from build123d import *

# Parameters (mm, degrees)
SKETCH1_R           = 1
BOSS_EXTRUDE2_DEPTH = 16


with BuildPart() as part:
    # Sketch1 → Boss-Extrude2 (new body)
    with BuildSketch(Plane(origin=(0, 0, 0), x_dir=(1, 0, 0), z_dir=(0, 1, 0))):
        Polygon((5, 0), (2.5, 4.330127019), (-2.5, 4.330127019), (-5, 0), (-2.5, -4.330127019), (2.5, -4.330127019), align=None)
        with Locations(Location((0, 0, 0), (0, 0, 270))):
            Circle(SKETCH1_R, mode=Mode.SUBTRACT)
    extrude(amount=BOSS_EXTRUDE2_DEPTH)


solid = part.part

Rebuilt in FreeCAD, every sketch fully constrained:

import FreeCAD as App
import Part
import Sketcher
Q = App.Units.Quantity

doc = App.newDocument("Part")
body = doc.addObject("PartDesign::Body", "Body")

sketch1 = body.newObject("Sketcher::SketchObject", "Sketch")
sketch1.AttachmentSupport = (doc.getObject("XZ_Plane"), [""])
sketch1.MapMode = "FlatFace"
sketch1.addGeometry(Part.LineSegment(App.Vector(5, 0, 0), App.Vector(2.5, -4.3, 0)), False)
sketch1.addGeometry(Part.LineSegment(App.Vector(2.5, -4.3, 0), App.Vector(-2.5, -4.3, 0)), False)
sketch1.addGeometry(Part.LineSegment(App.Vector(-2.5, -4.3, 0), App.Vector(-5, 0, 0)), False)
sketch1.addGeometry(Part.LineSegment(App.Vector(-5, 0, 0), App.Vector(-2.5, 4.3, 0)), False)
sketch1.addGeometry(Part.LineSegment(App.Vector(-2.5, 4.3, 0), App.Vector(2.5, 4.3, 0)), False)
sketch1.addGeometry(Part.LineSegment(App.Vector(2.5, 4.3, 0), App.Vector(5, 0, 0)), False)
sketch1.addGeometry(Part.Circle(App.Vector(0, 0, 0), App.Vector(0, 0, 1), 1), False)
sketch1.addConstraint(Sketcher.Constraint("Coincident", 0, 2, 1, 1))
sketch1.addConstraint(Sketcher.Constraint("Coincident", 1, 2, 2, 1))
sketch1.addConstraint(Sketcher.Constraint("Coincident", 2, 2, 3, 1))
sketch1.addConstraint(Sketcher.Constraint("Coincident", 3, 2, 4, 1))
sketch1.addConstraint(Sketcher.Constraint("Coincident", 4, 2, 5, 1))
sketch1.addConstraint(Sketcher.Constraint("Coincident", 5, 2, 0, 1))
sketch1.addConstraint(Sketcher.Constraint("Horizontal", 1))
sketch1.addConstraint(Sketcher.Constraint("Horizontal", 4))
sketch1.addConstraint(Sketcher.Constraint("Coincident", 6, 3, -1, 1))
sketch1.addConstraint(Sketcher.Constraint("Symmetric", 0, 2, 3, 2, -1, 1))
sketch1.addConstraint(Sketcher.Constraint("Symmetric", 2, 2, 5, 2, -1, 1))
sketch1.addConstraint(Sketcher.Constraint("PointOnObject", 2, 2, -1))
sketch1.addConstraint(Sketcher.Constraint("Parallel", 2, 5))
sketch1.addConstraint(Sketcher.Constraint("Vertical", 1, 2, 3, 2))
sketch1.addConstraint(Sketcher.Constraint("Diameter", 6, 2.0))
sketch1.addConstraint(Sketcher.Constraint("DistanceX", 1, 2, 1, 1, 5.0))
sketch1.addConstraint(Sketcher.Constraint("Angle", 0, Q("-120 deg")))
sketch1.addConstraint(Sketcher.Constraint("Distance", 0, 5.0))
pad1 = body.newObject("PartDesign::Pad", "Pad")
pad1.Profile = sketch1
pad1.Length = 16
pad1.Reversed = True

doc.recompute()
